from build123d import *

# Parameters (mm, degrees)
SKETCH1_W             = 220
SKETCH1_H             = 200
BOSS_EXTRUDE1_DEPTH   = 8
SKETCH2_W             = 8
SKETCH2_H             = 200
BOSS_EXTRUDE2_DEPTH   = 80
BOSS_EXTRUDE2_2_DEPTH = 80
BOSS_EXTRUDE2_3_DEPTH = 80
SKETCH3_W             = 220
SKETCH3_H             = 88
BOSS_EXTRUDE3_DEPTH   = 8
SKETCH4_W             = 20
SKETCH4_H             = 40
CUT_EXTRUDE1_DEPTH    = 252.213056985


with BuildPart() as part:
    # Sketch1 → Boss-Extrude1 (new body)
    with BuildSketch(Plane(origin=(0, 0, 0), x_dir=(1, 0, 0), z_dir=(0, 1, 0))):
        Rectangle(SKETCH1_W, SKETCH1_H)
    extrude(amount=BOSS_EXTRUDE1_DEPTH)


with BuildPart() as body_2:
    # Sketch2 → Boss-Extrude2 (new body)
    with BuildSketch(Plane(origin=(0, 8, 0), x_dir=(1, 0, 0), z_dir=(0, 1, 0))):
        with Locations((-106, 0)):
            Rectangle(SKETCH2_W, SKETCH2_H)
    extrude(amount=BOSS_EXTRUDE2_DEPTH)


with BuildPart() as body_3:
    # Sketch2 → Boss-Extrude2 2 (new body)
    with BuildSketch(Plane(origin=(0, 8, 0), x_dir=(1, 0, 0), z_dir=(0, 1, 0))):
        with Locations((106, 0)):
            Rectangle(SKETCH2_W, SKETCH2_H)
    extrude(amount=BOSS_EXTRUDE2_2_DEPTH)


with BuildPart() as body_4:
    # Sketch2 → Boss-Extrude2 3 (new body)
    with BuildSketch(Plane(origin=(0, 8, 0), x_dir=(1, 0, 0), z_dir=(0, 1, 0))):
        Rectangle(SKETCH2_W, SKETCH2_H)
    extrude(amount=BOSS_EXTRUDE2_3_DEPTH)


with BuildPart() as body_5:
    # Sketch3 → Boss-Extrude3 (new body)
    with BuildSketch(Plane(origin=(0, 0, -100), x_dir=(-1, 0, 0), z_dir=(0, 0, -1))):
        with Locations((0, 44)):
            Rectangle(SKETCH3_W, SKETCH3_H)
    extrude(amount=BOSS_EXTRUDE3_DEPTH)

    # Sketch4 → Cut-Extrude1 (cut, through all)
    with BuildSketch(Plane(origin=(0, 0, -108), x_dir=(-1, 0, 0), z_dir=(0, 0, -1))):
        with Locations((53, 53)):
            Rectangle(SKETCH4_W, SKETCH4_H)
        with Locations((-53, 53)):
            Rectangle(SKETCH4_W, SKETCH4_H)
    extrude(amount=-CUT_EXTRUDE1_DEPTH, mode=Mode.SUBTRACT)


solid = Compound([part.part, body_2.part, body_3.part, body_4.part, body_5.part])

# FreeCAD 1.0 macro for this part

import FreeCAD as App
import Part
import Sketcher

V = App.Vector
Q = App.Units.Quantity

doc = App.newDocument("Part")
body = doc.addObject("PartDesign::Body", "Body")

# Sketch on XZ plane
sketch1 = doc.addObject("Sketcher::SketchObject", "Sketch")
body.addObject(sketch1)
sketch1.AttachmentSupport = (doc.XZ_Plane, [""])
sketch1.MapMode = "FlatFace"
sketch1.addGeometry(Part.LineSegment(V(-110, -100, 0), V(-110, 100, 0)), False)
sketch1.addGeometry(Part.LineSegment(V(-110, 100, 0), V(110, 100, 0)), False)
sketch1.addGeometry(Part.LineSegment(V(110, 100, 0), V(110, -100, 0)), False)
sketch1.addGeometry(Part.LineSegment(V(110, -100, 0), V(-110, -100, 0)), False)
sketch1.addConstraint(Sketcher.Constraint("Coincident", 0, 2, 1, 1))
sketch1.addConstraint(Sketcher.Constraint("Coincident", 1, 2, 2, 1))
sketch1.addConstraint(Sketcher.Constraint("Coincident", 2, 2, 3, 1))
sketch1.addConstraint(Sketcher.Constraint("Coincident", 3, 2, 0, 1))
sketch1.addConstraint(Sketcher.Constraint("Vertical", 0))
sketch1.addConstraint(Sketcher.Constraint("Horizontal", 1))
sketch1.addConstraint(Sketcher.Constraint("Vertical", 2))
sketch1.addConstraint(Sketcher.Constraint("Horizontal", 3))
sketch1.addConstraint(Sketcher.Constraint("Symmetric", 0, 2, 2, 2, -1, 1))
sketch1.addConstraint(Sketcher.Constraint("DistanceX", 1, 1, 1, 2, Q("220 mm")))
sketch1.addConstraint(Sketcher.Constraint("DistanceY", 0, 1, 0, 2, Q("200 mm")))
pad1 = doc.addObject("PartDesign::Pad", "Pad")
body.addObject(pad1)
pad1.Profile = sketch1
pad1.Length = 8
pad1.Reversed = True
body2 = doc.addObject("PartDesign::Body", "Body001")

# Sketch on XZ plane
sketch2 = doc.addObject("Sketcher::SketchObject", "Sketch001")
body2.addObject(sketch2)
sketch2.AttachmentSupport = (doc.getObject("XZ_Plane001"), [""])
sketch2.MapMode = "FlatFace"
sketch2.AttachmentOffset = App.Placement(V(0, 0, -8), App.Rotation())
sketch2.addGeometry(Part.LineSegment(V(-110, -100, 0), V(-110, 100, 0)), False)
sketch2.addGeometry(Part.LineSegment(V(-110, 100, 0), V(-102, 100, 0)), False)
sketch2.addGeometry(Part.LineSegment(V(-102, 100, 0), V(-102, -100, 0)), False)
sketch2.addGeometry(Part.LineSegment(V(-102, -100, 0), V(-110, -100, 0)), False)
sketch2.addConstraint(Sketcher.Constraint("Coincident", 0, 2, 1, 1))
sketch2.addConstraint(Sketcher.Constraint("Coincident", 1, 2, 2, 1))
sketch2.addConstraint(Sketcher.Constraint("Coincident", 2, 2, 3, 1))
sketch2.addConstraint(Sketcher.Constraint("Coincident", 3, 2, 0, 1))
sketch2.addConstraint(Sketcher.Constraint("Vertical", 0))
sketch2.addConstraint(Sketcher.Constraint("Horizontal", 1))
sketch2.addConstraint(Sketcher.Constraint("Vertical", 2))
sketch2.addConstraint(Sketcher.Constraint("Horizontal", 3))
sketch2.addConstraint(Sketcher.Constraint("DistanceX", 1, 1, 1, 2, Q("8 mm")))
sketch2.addConstraint(Sketcher.Constraint("DistanceY", 0, 1, 0, 2, Q("200 mm")))
sketch2.addConstraint(Sketcher.Constraint("DistanceX", 0, 2, -1, 1, Q("110 mm")))
sketch2.addConstraint(Sketcher.Constraint("DistanceY", -1, 1, 0, 2, Q("100 mm")))
pad2 = doc.addObject("PartDesign::Pad", "Pad001")
body2.addObject(pad2)
pad2.Profile = sketch2
pad2.Length = 80
pad2.Reversed = True
body3 = doc.addObject("PartDesign::Body", "Body002")

# Sketch on XZ plane
sketch3 = doc.addObject("Sketcher::SketchObject", "Sketch002")
body3.addObject(sketch3)
sketch3.AttachmentSupport = (doc.getObject("XZ_Plane002"), [""])
sketch3.MapMode = "FlatFace"
sketch3.AttachmentOffset = App.Placement(V(0, 0, -8), App.Rotation())
sketch3.addGeometry(Part.LineSegment(V(102, -100, 0), V(102, 100, 0)), False)
sketch3.addGeometry(Part.LineSegment(V(102, 100, 0), V(110, 100, 0)), False)
sketch3.addGeometry(Part.LineSegment(V(110, 100, 0), V(110, -100, 0)), False)
sketch3.addGeometry(Part.LineSegment(V(110, -100, 0), V(102, -100, 0)), False)
sketch3.addConstraint(Sketcher.Constraint("Coincident", 0, 2, 1, 1))
sketch3.addConstraint(Sketcher.Constraint("Coincident", 1, 2, 2, 1))
sketch3.addConstraint(Sketcher.Constraint("Coincident", 2, 2, 3, 1))
sketch3.addConstraint(Sketcher.Constraint("Coincident", 3, 2, 0, 1))
sketch3.addConstraint(Sketcher.Constraint("Vertical", 0))
sketch3.addConstraint(Sketcher.Constraint("Horizontal", 1))
sketch3.addConstraint(Sketcher.Constraint("Vertical", 2))
sketch3.addConstraint(Sketcher.Constraint("Horizontal", 3))
sketch3.addConstraint(Sketcher.Constraint("DistanceX", 1, 1, 1, 2, Q("8 mm")))
sketch3.addConstraint(Sketcher.Constraint("DistanceY", 0, 1, 0, 2, Q("200 mm")))
sketch3.addConstraint(Sketcher.Constraint("DistanceX", -1, 1, 0, 2, Q("102 mm")))
sketch3.addConstraint(Sketcher.Constraint("DistanceY", -1, 1, 0, 2, Q("100 mm")))
pad3 = doc.addObject("PartDesign::Pad", "Pad002")
body3.addObject(pad3)
pad3.Profile = sketch3
pad3.Length = 80
pad3.Reversed = True
body4 = doc.addObject("PartDesign::Body", "Body003")

# Sketch on XZ plane
sketch4 = doc.addObject("Sketcher::SketchObject", "Sketch003")
body4.addObject(sketch4)
sketch4.AttachmentSupport = (doc.getObject("XZ_Plane003"), [""])
sketch4.MapMode = "FlatFace"
sketch4.AttachmentOffset = App.Placement(V(0, 0, -8), App.Rotation())
sketch4.addGeometry(Part.LineSegment(V(-4, -100, 0), V(-4, 100, 0)), False)
sketch4.addGeometry(Part.LineSegment(V(-4, 100, 0), V(4, 100, 0)), False)
sketch4.addGeometry(Part.LineSegment(V(4, 100, 0), V(4, -100, 0)), False)
sketch4.addGeometry(Part.LineSegment(V(4, -100, 0), V(-4, -100, 0)), False)
sketch4.addConstraint(Sketcher.Constraint("Coincident", 0, 2, 1, 1))
sketch4.addConstraint(Sketcher.Constraint("Coincident", 1, 2, 2, 1))
sketch4.addConstraint(Sketcher.Constraint("Coincident", 2, 2, 3, 1))
sketch4.addConstraint(Sketcher.Constraint("Coincident", 3, 2, 0, 1))
sketch4.addConstraint(Sketcher.Constraint("Vertical", 0))
sketch4.addConstraint(Sketcher.Constraint("Horizontal", 1))
sketch4.addConstraint(Sketcher.Constraint("Vertical", 2))
sketch4.addConstraint(Sketcher.Constraint("Horizontal", 3))
sketch4.addConstraint(Sketcher.Constraint("Symmetric", 0, 2, 2, 2, -1, 1))
sketch4.addConstraint(Sketcher.Constraint("DistanceX", 1, 1, 1, 2, Q("8 mm")))
sketch4.addConstraint(Sketcher.Constraint("DistanceY", 0, 1, 0, 2, Q("200 mm")))
pad4 = doc.addObject("PartDesign::Pad", "Pad003")
body4.addObject(pad4)
pad4.Profile = sketch4
pad4.Length = 80
pad4.Reversed = True
body5 = doc.addObject("PartDesign::Body", "Body004")

# Sketch on XY plane
sketch5 = doc.addObject("Sketcher::SketchObject", "Sketch004")
body5.addObject(sketch5)
sketch5.AttachmentSupport = (doc.getObject("XY_Plane004"), [""])
sketch5.MapMode = "FlatFace"
sketch5.AttachmentOffset = App.Placement(V(0, 0, -100), App.Rotation())
sketch5.addGeometry(Part.LineSegment(V(110, 88, 0), V(110, 0, 0)), False)
sketch5.addGeometry(Part.LineSegment(V(110, 0, 0), V(-110, 0, 0)), False)
sketch5.addGeometry(Part.LineSegment(V(-110, 0, 0), V(-110, 88, 0)), False)
sketch5.addGeometry(Part.LineSegment(V(-110, 88, 0), V(110, 88, 0)), False)
sketch5.addConstraint(Sketcher.Constraint("Coincident", 0, 2, 1, 1))
sketch5.addConstraint(Sketcher.Constraint("Coincident", 1, 2, 2, 1))
sketch5.addConstraint(Sketcher.Constraint("Coincident", 2, 2, 3, 1))
sketch5.addConstraint(Sketcher.Constraint("Coincident", 3, 2, 0, 1))
sketch5.addConstraint(Sketcher.Constraint("Vertical", 0))
sketch5.addConstraint(Sketcher.Constraint("Horizontal", 1))
sketch5.addConstraint(Sketcher.Constraint("Vertical", 2))
sketch5.addConstraint(Sketcher.Constraint("Horizontal", 3))
sketch5.addConstraint(Sketcher.Constraint("Symmetric", 0, 2, 1, 2, -1, 1))
sketch5.addConstraint(Sketcher.Constraint("DistanceX", 1, 2, 1, 1, Q("220 mm")))
sketch5.addConstraint(Sketcher.Constraint("DistanceY", 0, 2, 0, 1, Q("88 mm")))
pad5 = doc.addObject("PartDesign::Pad", "Pad004")
body5.addObject(pad5)
pad5.Profile = sketch5
pad5.Length = 8
pad5.Reversed = True

# Sketch on XY plane
sketch6 = doc.addObject("Sketcher::SketchObject", "Sketch005")
body5.addObject(sketch6)
sketch6.AttachmentSupport = (doc.getObject("XY_Plane004"), [""])
sketch6.MapMode = "FlatFace"
sketch6.AttachmentOffset = App.Placement(V(0, 0, -108), App.Rotation())
sketch6.addGeometry(Part.LineSegment(V(-43, 73, 0), V(-43, 33, 0)), False)
sketch6.addGeometry(Part.LineSegment(V(-43, 33, 0), V(-63, 33, 0)), False)
sketch6.addGeometry(Part.LineSegment(V(-63, 33, 0), V(-63, 73, 0)), False)
sketch6.addGeometry(Part.LineSegment(V(-63, 73, 0), V(-43, 73, 0)), False)
sketch6.addGeometry(Part.LineSegment(V(63, 73, 0), V(63, 33, 0)), False)
sketch6.addGeometry(Part.LineSegment(V(63, 33, 0), V(43, 33, 0)), False)
sketch6.addGeometry(Part.LineSegment(V(43, 33, 0), V(43, 73, 0)), False)
sketch6.addGeometry(Part.LineSegment(V(43, 73, 0), V(63, 73, 0)), False)
sketch6.addConstraint(Sketcher.Constraint("Coincident", 0, 2, 1, 1))
sketch6.addConstraint(Sketcher.Constraint("Coincident", 1, 2, 2, 1))
sketch6.addConstraint(Sketcher.Constraint("Coincident", 2, 2, 3, 1))
sketch6.addConstraint(Sketcher.Constraint("Coincident", 3, 2, 0, 1))
sketch6.addConstraint(Sketcher.Constraint("Coincident", 4, 2, 5, 1))
sketch6.addConstraint(Sketcher.Constraint("Coincident", 5, 2, 6, 1))
sketch6.addConstraint(Sketcher.Constraint("Coincident", 6, 2, 7, 1))
sketch6.addConstraint(Sketcher.Constraint("Coincident", 7, 2, 4, 1))
sketch6.addConstraint(Sketcher.Constraint("Vertical", 0))
sketch6.addConstraint(Sketcher.Constraint("Horizontal", 1))
sketch6.addConstraint(Sketcher.Constraint("Vertical", 2))
sketch6.addConstraint(Sketcher.Constraint("Horizontal", 3))
sketch6.addConstraint(Sketcher.Constraint("Vertical", 4))
sketch6.addConstraint(Sketcher.Constraint("Horizontal", 5))
sketch6.addConstraint(Sketcher.Constraint("Vertical", 6))
sketch6.addConstraint(Sketcher.Constraint("Horizontal", 7))
sketch6.addConstraint(Sketcher.Constraint("Symmetric", 1, 2, 4, 2, -2))
sketch6.addConstraint(Sketcher.Constraint("Symmetric", 3, 2, 6, 2, -2))
sketch6.addConstraint(Sketcher.Constraint("DistanceX", 1, 2, 1, 1, Q("20 mm")))
sketch6.addConstraint(Sketcher.Constraint("DistanceY", 0, 2, 0, 1, Q("40 mm")))
sketch6.addConstraint(Sketcher.Constraint("DistanceX", 0, 2, -1, 1, Q("43 mm")))
sketch6.addConstraint(Sketcher.Constraint("DistanceY", -1, 1, 0, 2, Q("33 mm")))
pocket1 = doc.addObject("PartDesign::Pocket", "Pocket")
body5.addObject(pocket1)
pocket1.Profile = sketch6
pocket1.Type = "ThroughAll"
pocket1.Reversed = True

doc.recompute()
